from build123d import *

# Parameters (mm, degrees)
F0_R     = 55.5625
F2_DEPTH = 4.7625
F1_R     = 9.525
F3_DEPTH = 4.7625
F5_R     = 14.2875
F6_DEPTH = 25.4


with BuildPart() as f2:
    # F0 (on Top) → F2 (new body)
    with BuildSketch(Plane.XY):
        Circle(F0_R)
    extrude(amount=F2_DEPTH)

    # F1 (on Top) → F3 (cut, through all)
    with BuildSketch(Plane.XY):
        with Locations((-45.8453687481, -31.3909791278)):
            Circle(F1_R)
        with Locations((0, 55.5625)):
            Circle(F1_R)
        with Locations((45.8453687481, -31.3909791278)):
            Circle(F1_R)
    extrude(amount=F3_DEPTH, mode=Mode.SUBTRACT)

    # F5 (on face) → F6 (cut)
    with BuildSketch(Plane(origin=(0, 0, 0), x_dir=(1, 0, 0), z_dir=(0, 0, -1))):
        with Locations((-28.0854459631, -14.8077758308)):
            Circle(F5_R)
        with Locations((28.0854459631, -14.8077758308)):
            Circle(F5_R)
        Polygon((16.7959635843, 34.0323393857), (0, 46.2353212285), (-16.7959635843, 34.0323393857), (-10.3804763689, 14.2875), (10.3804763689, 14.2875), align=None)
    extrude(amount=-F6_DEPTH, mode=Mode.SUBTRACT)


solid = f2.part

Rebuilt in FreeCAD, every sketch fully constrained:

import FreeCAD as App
import Part
import Sketcher
from FreeCAD import Vector
Q = App.Units.Quantity


def add_polygon(sketch, points):
    """Adds a closed chain of lines whose ends are joined by coincident constraints."""
    first, n = sketch.GeometryCount, len(points)
    for a, b in zip(points, points[1:] + points[:1]):
        sketch.addGeometry(Part.LineSegment(App.Vector(*a, 0), App.Vector(*b, 0)), False)
    for i in range(n):
        sketch.addConstraint(Sketcher.Constraint("Coincident", first + i, 2, first + (i + 1) % n, 1))

doc = App.newDocument("Part")
params = doc.addObject("Spreadsheet::Sheet", "Params")
for row, (alias, value) in enumerate([
    ("sketch1_diameter", "4.375 in"),
    ("pad1_length", "0.1875 in"),
    ("sketch2_diameter", "0.75 in"),
    ("sketch3_diameter", "1.125 in"),
    ("pocket2_length", "1 in"),
], start=1):
    params.set(f"A{row}", alias)
    params.set(f"B{row}", "=" + value)
    params.setAlias(f"B{row}", alias)

body = doc.addObject("PartDesign::Body", "Body")

# Sketch on XY plane
sketch1 = doc.addObject("Sketcher::SketchObject", "Sketch")
body.addObject(sketch1)
sketch1.AttachmentSupport = (doc.XY_Plane, [""])
sketch1.MapMode = "FlatFace"
sketch1.addGeometry(Part.Circle(Vector(0, 0, 0), Vector(0, 0, 1), 55.5625), False)
sketch1.addConstraint([
    Sketcher.Constraint("Coincident", 0, 3, -1, 1),
    Sketcher.Constraint("Diameter", 0, Q("4.375 in")),
])
sketch1.setExpression("Constraints[1]", "Params.sketch1_diameter")
pad1 = doc.addObject("PartDesign::Pad", "Pad")
body.addObject(pad1)
pad1.Profile = sketch1
pad1.setExpression("Length", "Params.pad1_length")

# Sketch on XY plane
sketch2 = doc.addObject("Sketcher::SketchObject", "Sketch001")
body.addObject(sketch2)
sketch2.AttachmentSupport = (doc.XY_Plane, [""])
sketch2.MapMode = "FlatFace"
sketch2.addGeometry([
    Part.Circle(Vector(-45.845369, -31.390979, 0), Vector(0, 0, 1), 9.525),
    Part.Circle(Vector(0, 55.5625, 0), Vector(0, 0, 1), 9.525),
    Part.Circle(Vector(45.845369, -31.390979, 0), Vector(0, 0, 1), 9.525),
], False)
sketch2.addConstraint([
    Sketcher.Constraint("Equal", 0, 1),
    Sketcher.Constraint("Equal", 1, 2),
    Sketcher.Constraint("Symmetric", 0, 3, 2, 3, -2),
    Sketcher.Constraint("PointOnObject", 1, 3, -2),
    Sketcher.Constraint("Diameter", 0, Q("0.75 in")),
    Sketcher.Constraint("DistanceY", -1, 1, 1, 3, Q("2.1875 in")),
    Sketcher.Constraint("DistanceX", 0, 3, -1, 1, Q("45.845369 mm")),
    Sketcher.Constraint("DistanceY", 0, 3, -1, 1, Q("31.390979 mm")),
])
sketch2.setExpression("Constraints[4]", "Params.sketch2_diameter")
pocket1 = doc.addObject("PartDesign::Pocket", "Pocket")
body.addObject(pocket1)
pocket1.Profile = sketch2
pocket1.Type = "ThroughAll"
pocket1.Reversed = True

# Sketch on XY plane
sketch3 = doc.addObject("Sketcher::SketchObject", "Sketch002")
body.addObject(sketch3)
sketch3.AttachmentSupport = (doc.XY_Plane, [""])
sketch3.MapMode = "FlatFace"
sketch3.addGeometry(Part.Circle(Vector(-28.085446, 14.807776, 0), Vector(0, 0, 1), 14.2875), False)  # 0
sketch3.addGeometry(Part.Circle(Vector(28.085446, 14.807776, 0), Vector(0, 0, 1), 14.2875), False)  # 1
add_polygon(sketch3, [(16.795964, -34.032339), (0, -46.235321), (-16.795964, -34.032339), (-10.380476, -14.2875), (10.380476, -14.2875)])  # lines 2-6
sketch3.addConstraint([
    Sketcher.Constraint("Horizontal", 5),
    Sketcher.Constraint("Equal", 0, 1),
    Sketcher.Constraint("Symmetric", 0, 3, 1, 3, -2),
    Sketcher.Constraint("Symmetric", 3, 2, 6, 2, -2),
    Sketcher.Constraint("PointOnObject", 2, 2, -2),
    Sketcher.Constraint("Equal", 3, 4),
    Sketcher.Constraint("Equal", 4, 6),
    Sketcher.Constraint("Diameter", 0, Q("1.125 in")),
    Sketcher.Constraint("Angle", 2, Q("-144 deg")),
    Sketcher.Constraint("Angle", 4, Q("72 deg")),
    Sketcher.Constraint("DistanceY", 4, 2, -1, 1, Q("0.5625 in")),
    Sketcher.Constraint("DistanceX", 5, 1, 5, 2, Q("20.760953 mm")),
    Sketcher.Constraint("DistanceX", 0, 3, 1, 3, Q("56.170892 mm")),
    Sketcher.Constraint("DistanceY", -1, 1, 0, 3, Q("14.807776 mm")),
])
sketch3.setExpression("Constraints[12]", "Params.sketch3_diameter")
pocket2 = doc.addObject("PartDesign::Pocket", "Pocket001")
body.addObject(pocket2)
pocket2.Profile = sketch3
pocket2.setExpression("Length", "Params.pocket2_length")
pocket2.Reversed = True

doc.recompute()
